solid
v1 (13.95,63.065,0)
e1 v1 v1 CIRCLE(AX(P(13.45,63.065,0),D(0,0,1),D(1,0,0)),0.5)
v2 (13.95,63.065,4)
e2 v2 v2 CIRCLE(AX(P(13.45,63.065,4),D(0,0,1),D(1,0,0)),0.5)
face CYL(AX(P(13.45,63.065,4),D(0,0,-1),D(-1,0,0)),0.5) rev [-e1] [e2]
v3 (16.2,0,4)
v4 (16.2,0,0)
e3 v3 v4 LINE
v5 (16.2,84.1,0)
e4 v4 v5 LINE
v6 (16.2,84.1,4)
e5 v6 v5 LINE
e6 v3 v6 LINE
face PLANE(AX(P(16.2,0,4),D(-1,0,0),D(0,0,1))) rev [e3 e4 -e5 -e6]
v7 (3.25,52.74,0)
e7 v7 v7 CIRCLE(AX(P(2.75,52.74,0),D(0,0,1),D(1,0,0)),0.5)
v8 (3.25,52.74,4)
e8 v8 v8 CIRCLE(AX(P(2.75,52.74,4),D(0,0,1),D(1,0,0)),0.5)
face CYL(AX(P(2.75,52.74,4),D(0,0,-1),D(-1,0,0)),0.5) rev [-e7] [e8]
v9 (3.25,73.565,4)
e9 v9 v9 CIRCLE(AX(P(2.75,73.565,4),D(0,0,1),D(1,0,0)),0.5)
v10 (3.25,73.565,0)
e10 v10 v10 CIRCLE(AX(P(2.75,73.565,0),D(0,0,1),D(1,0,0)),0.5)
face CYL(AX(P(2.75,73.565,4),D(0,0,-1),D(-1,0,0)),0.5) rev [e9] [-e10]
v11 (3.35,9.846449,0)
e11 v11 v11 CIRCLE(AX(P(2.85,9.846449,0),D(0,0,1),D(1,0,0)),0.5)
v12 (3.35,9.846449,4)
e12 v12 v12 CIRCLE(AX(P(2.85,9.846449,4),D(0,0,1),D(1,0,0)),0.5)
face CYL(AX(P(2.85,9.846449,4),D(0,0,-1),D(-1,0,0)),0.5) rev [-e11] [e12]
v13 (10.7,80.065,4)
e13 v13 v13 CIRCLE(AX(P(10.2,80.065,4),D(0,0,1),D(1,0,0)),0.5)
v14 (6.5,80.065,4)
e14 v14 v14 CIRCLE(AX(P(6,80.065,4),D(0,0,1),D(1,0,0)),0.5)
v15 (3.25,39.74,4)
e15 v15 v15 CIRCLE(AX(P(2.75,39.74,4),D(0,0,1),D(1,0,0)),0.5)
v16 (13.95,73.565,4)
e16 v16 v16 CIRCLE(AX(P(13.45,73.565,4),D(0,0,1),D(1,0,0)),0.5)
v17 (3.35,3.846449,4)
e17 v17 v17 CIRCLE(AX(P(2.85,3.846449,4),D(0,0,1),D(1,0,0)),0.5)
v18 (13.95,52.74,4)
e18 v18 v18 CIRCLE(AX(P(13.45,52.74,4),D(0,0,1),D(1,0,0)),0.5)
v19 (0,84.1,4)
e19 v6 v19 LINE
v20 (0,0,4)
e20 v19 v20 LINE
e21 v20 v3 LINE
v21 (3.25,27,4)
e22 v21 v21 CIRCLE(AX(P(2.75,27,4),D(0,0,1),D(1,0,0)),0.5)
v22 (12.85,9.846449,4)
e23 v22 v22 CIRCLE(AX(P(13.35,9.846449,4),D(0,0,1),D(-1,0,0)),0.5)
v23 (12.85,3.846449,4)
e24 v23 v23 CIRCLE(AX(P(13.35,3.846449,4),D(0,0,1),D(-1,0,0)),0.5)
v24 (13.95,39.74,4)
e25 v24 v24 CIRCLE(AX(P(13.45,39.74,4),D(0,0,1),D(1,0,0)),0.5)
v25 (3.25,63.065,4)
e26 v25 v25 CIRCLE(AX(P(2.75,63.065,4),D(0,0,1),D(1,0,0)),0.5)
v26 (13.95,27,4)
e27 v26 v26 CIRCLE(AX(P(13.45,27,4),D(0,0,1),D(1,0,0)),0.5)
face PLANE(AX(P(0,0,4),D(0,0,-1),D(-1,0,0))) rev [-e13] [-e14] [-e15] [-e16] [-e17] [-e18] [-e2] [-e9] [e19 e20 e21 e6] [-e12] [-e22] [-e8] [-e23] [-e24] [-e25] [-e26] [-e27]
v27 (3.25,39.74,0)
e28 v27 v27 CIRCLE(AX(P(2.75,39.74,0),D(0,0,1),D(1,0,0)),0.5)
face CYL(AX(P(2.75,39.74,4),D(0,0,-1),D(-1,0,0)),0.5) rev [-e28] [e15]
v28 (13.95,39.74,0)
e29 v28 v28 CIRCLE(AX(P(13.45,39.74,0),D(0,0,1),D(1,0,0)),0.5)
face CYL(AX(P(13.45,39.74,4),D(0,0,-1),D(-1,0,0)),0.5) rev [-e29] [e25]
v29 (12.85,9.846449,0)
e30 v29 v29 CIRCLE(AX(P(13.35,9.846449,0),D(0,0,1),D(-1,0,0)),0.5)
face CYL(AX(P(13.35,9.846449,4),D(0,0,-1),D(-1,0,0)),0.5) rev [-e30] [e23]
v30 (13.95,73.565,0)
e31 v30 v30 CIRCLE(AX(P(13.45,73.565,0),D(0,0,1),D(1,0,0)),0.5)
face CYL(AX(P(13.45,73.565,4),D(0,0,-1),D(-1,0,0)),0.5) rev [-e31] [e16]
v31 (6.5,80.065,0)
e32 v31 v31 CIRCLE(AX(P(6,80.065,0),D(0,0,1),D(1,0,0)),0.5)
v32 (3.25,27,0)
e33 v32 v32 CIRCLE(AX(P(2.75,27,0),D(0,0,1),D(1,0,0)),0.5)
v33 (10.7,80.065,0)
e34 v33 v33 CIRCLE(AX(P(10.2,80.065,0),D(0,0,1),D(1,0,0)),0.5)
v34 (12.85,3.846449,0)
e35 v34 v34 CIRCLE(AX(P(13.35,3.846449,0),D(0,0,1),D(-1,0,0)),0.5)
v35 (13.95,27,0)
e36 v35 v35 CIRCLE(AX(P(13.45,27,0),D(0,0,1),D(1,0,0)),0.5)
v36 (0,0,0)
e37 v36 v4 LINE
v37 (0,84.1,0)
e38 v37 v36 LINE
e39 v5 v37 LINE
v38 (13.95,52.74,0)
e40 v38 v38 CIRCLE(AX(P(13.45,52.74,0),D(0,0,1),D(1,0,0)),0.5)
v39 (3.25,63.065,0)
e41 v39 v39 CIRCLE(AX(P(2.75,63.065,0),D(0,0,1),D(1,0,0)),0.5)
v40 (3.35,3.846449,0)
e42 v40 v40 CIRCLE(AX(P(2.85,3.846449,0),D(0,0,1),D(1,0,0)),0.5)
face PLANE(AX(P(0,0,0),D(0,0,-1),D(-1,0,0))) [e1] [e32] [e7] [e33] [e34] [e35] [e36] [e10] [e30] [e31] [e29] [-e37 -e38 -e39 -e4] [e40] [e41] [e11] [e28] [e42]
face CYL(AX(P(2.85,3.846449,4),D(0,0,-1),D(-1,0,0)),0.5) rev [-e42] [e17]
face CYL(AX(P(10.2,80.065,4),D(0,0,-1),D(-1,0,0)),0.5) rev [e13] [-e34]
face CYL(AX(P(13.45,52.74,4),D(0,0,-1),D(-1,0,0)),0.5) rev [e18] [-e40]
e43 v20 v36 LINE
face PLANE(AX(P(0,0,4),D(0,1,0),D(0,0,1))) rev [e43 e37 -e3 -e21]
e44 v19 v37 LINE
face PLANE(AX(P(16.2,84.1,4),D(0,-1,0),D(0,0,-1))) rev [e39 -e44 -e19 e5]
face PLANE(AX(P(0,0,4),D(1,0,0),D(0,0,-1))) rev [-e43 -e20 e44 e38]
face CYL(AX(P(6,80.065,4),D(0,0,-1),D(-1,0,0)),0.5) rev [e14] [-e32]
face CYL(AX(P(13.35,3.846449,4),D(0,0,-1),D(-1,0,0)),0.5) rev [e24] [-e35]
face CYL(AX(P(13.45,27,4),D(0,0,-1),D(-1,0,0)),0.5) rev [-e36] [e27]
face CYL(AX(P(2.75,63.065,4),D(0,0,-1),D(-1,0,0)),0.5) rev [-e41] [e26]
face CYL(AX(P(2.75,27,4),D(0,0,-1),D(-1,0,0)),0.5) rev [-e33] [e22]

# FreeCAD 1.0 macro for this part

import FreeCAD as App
import Part
import Sketcher
from FreeCAD import Vector

doc = App.newDocument("Part")
body = doc.addObject("PartDesign::Body", "Body")

# Sketch on XY plane
sketch1 = body.newObject("Sketcher::SketchObject", "Sketch")
sketch1.AttachmentSupport = (doc.getObject("XY_Plane"), [""])
sketch1.MapMode = "FlatFace"
sketch1.addGeometry(Part.LineSegment(Vector(0, 84.1, 0), Vector(0, 0, 0)), False)
sketch1.addGeometry(Part.LineSegment(Vector(0, 0, 0), Vector(16.2, 0, 0)), False)
sketch1.addGeometry(Part.LineSegment(Vector(16.2, 0, 0), Vector(16.2, 84.1, 0)), False)
sketch1.addGeometry(Part.LineSegment(Vector(16.2, 84.1, 0), Vector(0, 84.1, 0)), False)
sketch1.addGeometry(Part.Circle(Vector(2.9, 3.8, 0), Vector(0, 0, 1), 0.5), False)
sketch1.addGeometry(Part.Circle(Vector(2.9, 9.8, 0), Vector(0, 0, 1), 0.5), False)
sketch1.addGeometry(Part.Circle(Vector(2.8, 27, 0), Vector(0, 0, 1), 0.5), False)
sketch1.addGeometry(Part.Circle(Vector(2.8, 39.7, 0), Vector(0, 0, 1), 0.5), False)
sketch1.addGeometry(Part.Circle(Vector(13.3, 3.8, 0), Vector(0, 0, 1), 0.5), False)
sketch1.addGeometry(Part.Circle(Vector(13.3, 9.8, 0), Vector(0, 0, 1), 0.5), False)
sketch1.addGeometry(Part.Circle(Vector(13.4, 27, 0), Vector(0, 0, 1), 0.5), False)
sketch1.addGeometry(Part.Circle(Vector(13.4, 39.7, 0), Vector(0, 0, 1), 0.5), False)
sketch1.addGeometry(Part.Circle(Vector(2.8, 52.7, 0), Vector(0, 0, 1), 0.5), False)
sketch1.addGeometry(Part.Circle(Vector(2.8, 63.1, 0), Vector(0, 0, 1), 0.5), False)
sketch1.addGeometry(Part.Circle(Vector(2.8, 73.6, 0), Vector(0, 0, 1), 0.5), False)
sketch1.addGeometry(Part.Circle(Vector(6, 80.1, 0), Vector(0, 0, 1), 0.5), False)
sketch1.addGeometry(Part.Circle(Vector(13.4, 52.7, 0), Vector(0, 0, 1), 0.5), False)
sketch1.addGeometry(Part.Circle(Vector(10.2, 80.1, 0), Vector(0, 0, 1), 0.5), False)
sketch1.addGeometry(Part.Circle(Vector(13.4, 63.1, 0), Vector(0, 0, 1), 0.5), False)
sketch1.addGeometry(Part.Circle(Vector(13.4, 73.6, 0), Vector(0, 0, 1), 0.5), False)
sketch1.addConstraint(Sketcher.Constraint("Coincident", 0, 2, 1, 1))
sketch1.addConstraint(Sketcher.Constraint("Coincident", 1, 2, 2, 1))
sketch1.addConstraint(Sketcher.Constraint("Coincident", 2, 2, 3, 1))
sketch1.addConstraint(Sketcher.Constraint("Coincident", 3, 2, 0, 1))
sketch1.addConstraint(Sketcher.Constraint("Vertical", 0))
sketch1.addConstraint(Sketcher.Constraint("Horizontal", 1))
sketch1.addConstraint(Sketcher.Constraint("Vertical", 2))
sketch1.addConstraint(Sketcher.Constraint("Horizontal", 3))
sketch1.addConstraint(Sketcher.Constraint("Coincident", 0, 2, -1, 1))
sketch1.addConstraint(Sketcher.Constraint("Equal", 4, 5))
sketch1.addConstraint(Sketcher.Constraint("Equal", 5, 6))
sketch1.addConstraint(Sketcher.Constraint("Equal", 6, 7))
sketch1.addConstraint(Sketcher.Constraint("Equal", 7, 8))
sketch1.addConstraint(Sketcher.Constraint("Equal", 8, 9))
sketch1.addConstraint(Sketcher.Constraint("Equal", 9, 10))
sketch1.addConstraint(Sketcher.Constraint("Equal", 10, 11))
sketch1.addConstraint(Sketcher.Constraint("Equal", 11, 12))
sketch1.addConstraint(Sketcher.Constraint("Equal", 12, 13))
sketch1.addConstraint(Sketcher.Constraint("Equal", 13, 14))
sketch1.addConstraint(Sketcher.Constraint("Equal", 14, 15))
sketch1.addConstraint(Sketcher.Constraint("Equal", 15, 16))
sketch1.addConstraint(Sketcher.Constraint("Equal", 16, 17))
sketch1.addConstraint(Sketcher.Constraint("Equal", 17, 18))
sketch1.addConstraint(Sketcher.Constraint("Equal", 18, 19))
sketch1.addConstraint(Sketcher.Constraint("Horizontal", 4, 3, 8, 3))
sketch1.addConstraint(Sketcher.Constraint("Horizontal", 5, 3, 9, 3))
sketch1.addConstraint(Sketcher.Constraint("Horizontal", 6, 3, 10, 3))
sketch1.addConstraint(Sketcher.Constraint("Horizontal", 7, 3, 11, 3))
sketch1.addConstraint(Sketcher.Constraint("Horizontal", 12, 3, 16, 3))
sketch1.addConstraint(Sketcher.Constraint("Horizontal", 15, 3, 17, 3))
sketch1.addConstraint(Sketcher.Constraint("Horizontal", 13, 3, 18, 3))
sketch1.addConstraint(Sketcher.Constraint("Horizontal", 14, 3, 19, 3))
sketch1.addConstraint(Sketcher.Constraint("Vertical", 4, 3, 5, 3))
sketch1.addConstraint(Sketcher.Constraint("Vertical", 6, 3, 7, 3))
sketch1.addConstraint(Sketcher.Constraint("Vertical", 8, 3, 9, 3))
sketch1.addConstraint(Sketcher.Constraint("Vertical", 10, 3, 11, 3))
sketch1.addConstraint(Sketcher.Constraint("Vertical", 7, 3, 12, 3))
sketch1.addConstraint(Sketcher.Constraint("Vertical", 12, 3, 13, 3))
sketch1.addConstraint(Sketcher.Constraint("Vertical", 13, 3, 14, 3))
sketch1.addConstraint(Sketcher.Constraint("Vertical", 11, 3, 16, 3))
sketch1.addConstraint(Sketcher.Constraint("Vertical", 16, 3, 18, 3))
sketch1.addConstraint(Sketcher.Constraint("Vertical", 18, 3, 19, 3))
sketch1.addConstraint(Sketcher.Constraint("Diameter", 4, 1.0))
sketch1.addConstraint(Sketcher.Constraint("DistanceX", 1, 1, 1, 2, 16.2))
sketch1.addConstraint(Sketcher.Constraint("DistanceY", 0, 2, 0, 1, 84.1))
sketch1.addConstraint(Sketcher.Constraint("DistanceY", -1, 1, 6, 3, 27.0))
sketch1.addConstraint(Sketcher.Constraint("DistanceX", -1, 1, 15, 3, 6.0))
sketch1.addConstraint(Sketcher.Constraint("DistanceY", 4, 3, 5, 3, 6.0))
sketch1.addConstraint(Sketcher.Constraint("DistanceY", 7, 3, 12, 3, 13.0))
sketch1.addConstraint(Sketcher.Constraint("DistanceY", 13, 3, 15, 3, 17.0))
sketch1.addConstraint(Sketcher.Constraint("DistanceX", 17, 3, 2, 2, 6.0))
sketch1.addConstraint(Sketcher.Constraint("DistanceX", 6, 3, 5, 3, 0.1))
sketch1.addConstraint(Sketcher.Constraint("DistanceX", 4, 3, 8, 3, 10.5))
sketch1.addConstraint(Sketcher.Constraint("DistanceX", 6, 3, 10, 3, 10.7))
sketch1.addConstraint(Sketcher.Constraint("DistanceY", 13, 3, 14, 3, 10.5))
sketch1.addConstraint(Sketcher.Constraint("DistanceX", -1, 1, 4, 3, 2.85))
sketch1.addConstraint(Sketcher.Constraint("DistanceY", -1, 1, 7, 3, 39.74))
sketch1.addConstraint(Sketcher.Constraint("DistanceY", -1, 1, 13, 3, 63.065))
sketch1.addConstraint(Sketcher.Constraint("DistanceY", -1, 1, 4, 3, 3.846449))
pad1 = body.newObject("PartDesign::Pad", "Pad")
pad1.Profile = sketch1
pad1.Length = 4

doc.recompute()
